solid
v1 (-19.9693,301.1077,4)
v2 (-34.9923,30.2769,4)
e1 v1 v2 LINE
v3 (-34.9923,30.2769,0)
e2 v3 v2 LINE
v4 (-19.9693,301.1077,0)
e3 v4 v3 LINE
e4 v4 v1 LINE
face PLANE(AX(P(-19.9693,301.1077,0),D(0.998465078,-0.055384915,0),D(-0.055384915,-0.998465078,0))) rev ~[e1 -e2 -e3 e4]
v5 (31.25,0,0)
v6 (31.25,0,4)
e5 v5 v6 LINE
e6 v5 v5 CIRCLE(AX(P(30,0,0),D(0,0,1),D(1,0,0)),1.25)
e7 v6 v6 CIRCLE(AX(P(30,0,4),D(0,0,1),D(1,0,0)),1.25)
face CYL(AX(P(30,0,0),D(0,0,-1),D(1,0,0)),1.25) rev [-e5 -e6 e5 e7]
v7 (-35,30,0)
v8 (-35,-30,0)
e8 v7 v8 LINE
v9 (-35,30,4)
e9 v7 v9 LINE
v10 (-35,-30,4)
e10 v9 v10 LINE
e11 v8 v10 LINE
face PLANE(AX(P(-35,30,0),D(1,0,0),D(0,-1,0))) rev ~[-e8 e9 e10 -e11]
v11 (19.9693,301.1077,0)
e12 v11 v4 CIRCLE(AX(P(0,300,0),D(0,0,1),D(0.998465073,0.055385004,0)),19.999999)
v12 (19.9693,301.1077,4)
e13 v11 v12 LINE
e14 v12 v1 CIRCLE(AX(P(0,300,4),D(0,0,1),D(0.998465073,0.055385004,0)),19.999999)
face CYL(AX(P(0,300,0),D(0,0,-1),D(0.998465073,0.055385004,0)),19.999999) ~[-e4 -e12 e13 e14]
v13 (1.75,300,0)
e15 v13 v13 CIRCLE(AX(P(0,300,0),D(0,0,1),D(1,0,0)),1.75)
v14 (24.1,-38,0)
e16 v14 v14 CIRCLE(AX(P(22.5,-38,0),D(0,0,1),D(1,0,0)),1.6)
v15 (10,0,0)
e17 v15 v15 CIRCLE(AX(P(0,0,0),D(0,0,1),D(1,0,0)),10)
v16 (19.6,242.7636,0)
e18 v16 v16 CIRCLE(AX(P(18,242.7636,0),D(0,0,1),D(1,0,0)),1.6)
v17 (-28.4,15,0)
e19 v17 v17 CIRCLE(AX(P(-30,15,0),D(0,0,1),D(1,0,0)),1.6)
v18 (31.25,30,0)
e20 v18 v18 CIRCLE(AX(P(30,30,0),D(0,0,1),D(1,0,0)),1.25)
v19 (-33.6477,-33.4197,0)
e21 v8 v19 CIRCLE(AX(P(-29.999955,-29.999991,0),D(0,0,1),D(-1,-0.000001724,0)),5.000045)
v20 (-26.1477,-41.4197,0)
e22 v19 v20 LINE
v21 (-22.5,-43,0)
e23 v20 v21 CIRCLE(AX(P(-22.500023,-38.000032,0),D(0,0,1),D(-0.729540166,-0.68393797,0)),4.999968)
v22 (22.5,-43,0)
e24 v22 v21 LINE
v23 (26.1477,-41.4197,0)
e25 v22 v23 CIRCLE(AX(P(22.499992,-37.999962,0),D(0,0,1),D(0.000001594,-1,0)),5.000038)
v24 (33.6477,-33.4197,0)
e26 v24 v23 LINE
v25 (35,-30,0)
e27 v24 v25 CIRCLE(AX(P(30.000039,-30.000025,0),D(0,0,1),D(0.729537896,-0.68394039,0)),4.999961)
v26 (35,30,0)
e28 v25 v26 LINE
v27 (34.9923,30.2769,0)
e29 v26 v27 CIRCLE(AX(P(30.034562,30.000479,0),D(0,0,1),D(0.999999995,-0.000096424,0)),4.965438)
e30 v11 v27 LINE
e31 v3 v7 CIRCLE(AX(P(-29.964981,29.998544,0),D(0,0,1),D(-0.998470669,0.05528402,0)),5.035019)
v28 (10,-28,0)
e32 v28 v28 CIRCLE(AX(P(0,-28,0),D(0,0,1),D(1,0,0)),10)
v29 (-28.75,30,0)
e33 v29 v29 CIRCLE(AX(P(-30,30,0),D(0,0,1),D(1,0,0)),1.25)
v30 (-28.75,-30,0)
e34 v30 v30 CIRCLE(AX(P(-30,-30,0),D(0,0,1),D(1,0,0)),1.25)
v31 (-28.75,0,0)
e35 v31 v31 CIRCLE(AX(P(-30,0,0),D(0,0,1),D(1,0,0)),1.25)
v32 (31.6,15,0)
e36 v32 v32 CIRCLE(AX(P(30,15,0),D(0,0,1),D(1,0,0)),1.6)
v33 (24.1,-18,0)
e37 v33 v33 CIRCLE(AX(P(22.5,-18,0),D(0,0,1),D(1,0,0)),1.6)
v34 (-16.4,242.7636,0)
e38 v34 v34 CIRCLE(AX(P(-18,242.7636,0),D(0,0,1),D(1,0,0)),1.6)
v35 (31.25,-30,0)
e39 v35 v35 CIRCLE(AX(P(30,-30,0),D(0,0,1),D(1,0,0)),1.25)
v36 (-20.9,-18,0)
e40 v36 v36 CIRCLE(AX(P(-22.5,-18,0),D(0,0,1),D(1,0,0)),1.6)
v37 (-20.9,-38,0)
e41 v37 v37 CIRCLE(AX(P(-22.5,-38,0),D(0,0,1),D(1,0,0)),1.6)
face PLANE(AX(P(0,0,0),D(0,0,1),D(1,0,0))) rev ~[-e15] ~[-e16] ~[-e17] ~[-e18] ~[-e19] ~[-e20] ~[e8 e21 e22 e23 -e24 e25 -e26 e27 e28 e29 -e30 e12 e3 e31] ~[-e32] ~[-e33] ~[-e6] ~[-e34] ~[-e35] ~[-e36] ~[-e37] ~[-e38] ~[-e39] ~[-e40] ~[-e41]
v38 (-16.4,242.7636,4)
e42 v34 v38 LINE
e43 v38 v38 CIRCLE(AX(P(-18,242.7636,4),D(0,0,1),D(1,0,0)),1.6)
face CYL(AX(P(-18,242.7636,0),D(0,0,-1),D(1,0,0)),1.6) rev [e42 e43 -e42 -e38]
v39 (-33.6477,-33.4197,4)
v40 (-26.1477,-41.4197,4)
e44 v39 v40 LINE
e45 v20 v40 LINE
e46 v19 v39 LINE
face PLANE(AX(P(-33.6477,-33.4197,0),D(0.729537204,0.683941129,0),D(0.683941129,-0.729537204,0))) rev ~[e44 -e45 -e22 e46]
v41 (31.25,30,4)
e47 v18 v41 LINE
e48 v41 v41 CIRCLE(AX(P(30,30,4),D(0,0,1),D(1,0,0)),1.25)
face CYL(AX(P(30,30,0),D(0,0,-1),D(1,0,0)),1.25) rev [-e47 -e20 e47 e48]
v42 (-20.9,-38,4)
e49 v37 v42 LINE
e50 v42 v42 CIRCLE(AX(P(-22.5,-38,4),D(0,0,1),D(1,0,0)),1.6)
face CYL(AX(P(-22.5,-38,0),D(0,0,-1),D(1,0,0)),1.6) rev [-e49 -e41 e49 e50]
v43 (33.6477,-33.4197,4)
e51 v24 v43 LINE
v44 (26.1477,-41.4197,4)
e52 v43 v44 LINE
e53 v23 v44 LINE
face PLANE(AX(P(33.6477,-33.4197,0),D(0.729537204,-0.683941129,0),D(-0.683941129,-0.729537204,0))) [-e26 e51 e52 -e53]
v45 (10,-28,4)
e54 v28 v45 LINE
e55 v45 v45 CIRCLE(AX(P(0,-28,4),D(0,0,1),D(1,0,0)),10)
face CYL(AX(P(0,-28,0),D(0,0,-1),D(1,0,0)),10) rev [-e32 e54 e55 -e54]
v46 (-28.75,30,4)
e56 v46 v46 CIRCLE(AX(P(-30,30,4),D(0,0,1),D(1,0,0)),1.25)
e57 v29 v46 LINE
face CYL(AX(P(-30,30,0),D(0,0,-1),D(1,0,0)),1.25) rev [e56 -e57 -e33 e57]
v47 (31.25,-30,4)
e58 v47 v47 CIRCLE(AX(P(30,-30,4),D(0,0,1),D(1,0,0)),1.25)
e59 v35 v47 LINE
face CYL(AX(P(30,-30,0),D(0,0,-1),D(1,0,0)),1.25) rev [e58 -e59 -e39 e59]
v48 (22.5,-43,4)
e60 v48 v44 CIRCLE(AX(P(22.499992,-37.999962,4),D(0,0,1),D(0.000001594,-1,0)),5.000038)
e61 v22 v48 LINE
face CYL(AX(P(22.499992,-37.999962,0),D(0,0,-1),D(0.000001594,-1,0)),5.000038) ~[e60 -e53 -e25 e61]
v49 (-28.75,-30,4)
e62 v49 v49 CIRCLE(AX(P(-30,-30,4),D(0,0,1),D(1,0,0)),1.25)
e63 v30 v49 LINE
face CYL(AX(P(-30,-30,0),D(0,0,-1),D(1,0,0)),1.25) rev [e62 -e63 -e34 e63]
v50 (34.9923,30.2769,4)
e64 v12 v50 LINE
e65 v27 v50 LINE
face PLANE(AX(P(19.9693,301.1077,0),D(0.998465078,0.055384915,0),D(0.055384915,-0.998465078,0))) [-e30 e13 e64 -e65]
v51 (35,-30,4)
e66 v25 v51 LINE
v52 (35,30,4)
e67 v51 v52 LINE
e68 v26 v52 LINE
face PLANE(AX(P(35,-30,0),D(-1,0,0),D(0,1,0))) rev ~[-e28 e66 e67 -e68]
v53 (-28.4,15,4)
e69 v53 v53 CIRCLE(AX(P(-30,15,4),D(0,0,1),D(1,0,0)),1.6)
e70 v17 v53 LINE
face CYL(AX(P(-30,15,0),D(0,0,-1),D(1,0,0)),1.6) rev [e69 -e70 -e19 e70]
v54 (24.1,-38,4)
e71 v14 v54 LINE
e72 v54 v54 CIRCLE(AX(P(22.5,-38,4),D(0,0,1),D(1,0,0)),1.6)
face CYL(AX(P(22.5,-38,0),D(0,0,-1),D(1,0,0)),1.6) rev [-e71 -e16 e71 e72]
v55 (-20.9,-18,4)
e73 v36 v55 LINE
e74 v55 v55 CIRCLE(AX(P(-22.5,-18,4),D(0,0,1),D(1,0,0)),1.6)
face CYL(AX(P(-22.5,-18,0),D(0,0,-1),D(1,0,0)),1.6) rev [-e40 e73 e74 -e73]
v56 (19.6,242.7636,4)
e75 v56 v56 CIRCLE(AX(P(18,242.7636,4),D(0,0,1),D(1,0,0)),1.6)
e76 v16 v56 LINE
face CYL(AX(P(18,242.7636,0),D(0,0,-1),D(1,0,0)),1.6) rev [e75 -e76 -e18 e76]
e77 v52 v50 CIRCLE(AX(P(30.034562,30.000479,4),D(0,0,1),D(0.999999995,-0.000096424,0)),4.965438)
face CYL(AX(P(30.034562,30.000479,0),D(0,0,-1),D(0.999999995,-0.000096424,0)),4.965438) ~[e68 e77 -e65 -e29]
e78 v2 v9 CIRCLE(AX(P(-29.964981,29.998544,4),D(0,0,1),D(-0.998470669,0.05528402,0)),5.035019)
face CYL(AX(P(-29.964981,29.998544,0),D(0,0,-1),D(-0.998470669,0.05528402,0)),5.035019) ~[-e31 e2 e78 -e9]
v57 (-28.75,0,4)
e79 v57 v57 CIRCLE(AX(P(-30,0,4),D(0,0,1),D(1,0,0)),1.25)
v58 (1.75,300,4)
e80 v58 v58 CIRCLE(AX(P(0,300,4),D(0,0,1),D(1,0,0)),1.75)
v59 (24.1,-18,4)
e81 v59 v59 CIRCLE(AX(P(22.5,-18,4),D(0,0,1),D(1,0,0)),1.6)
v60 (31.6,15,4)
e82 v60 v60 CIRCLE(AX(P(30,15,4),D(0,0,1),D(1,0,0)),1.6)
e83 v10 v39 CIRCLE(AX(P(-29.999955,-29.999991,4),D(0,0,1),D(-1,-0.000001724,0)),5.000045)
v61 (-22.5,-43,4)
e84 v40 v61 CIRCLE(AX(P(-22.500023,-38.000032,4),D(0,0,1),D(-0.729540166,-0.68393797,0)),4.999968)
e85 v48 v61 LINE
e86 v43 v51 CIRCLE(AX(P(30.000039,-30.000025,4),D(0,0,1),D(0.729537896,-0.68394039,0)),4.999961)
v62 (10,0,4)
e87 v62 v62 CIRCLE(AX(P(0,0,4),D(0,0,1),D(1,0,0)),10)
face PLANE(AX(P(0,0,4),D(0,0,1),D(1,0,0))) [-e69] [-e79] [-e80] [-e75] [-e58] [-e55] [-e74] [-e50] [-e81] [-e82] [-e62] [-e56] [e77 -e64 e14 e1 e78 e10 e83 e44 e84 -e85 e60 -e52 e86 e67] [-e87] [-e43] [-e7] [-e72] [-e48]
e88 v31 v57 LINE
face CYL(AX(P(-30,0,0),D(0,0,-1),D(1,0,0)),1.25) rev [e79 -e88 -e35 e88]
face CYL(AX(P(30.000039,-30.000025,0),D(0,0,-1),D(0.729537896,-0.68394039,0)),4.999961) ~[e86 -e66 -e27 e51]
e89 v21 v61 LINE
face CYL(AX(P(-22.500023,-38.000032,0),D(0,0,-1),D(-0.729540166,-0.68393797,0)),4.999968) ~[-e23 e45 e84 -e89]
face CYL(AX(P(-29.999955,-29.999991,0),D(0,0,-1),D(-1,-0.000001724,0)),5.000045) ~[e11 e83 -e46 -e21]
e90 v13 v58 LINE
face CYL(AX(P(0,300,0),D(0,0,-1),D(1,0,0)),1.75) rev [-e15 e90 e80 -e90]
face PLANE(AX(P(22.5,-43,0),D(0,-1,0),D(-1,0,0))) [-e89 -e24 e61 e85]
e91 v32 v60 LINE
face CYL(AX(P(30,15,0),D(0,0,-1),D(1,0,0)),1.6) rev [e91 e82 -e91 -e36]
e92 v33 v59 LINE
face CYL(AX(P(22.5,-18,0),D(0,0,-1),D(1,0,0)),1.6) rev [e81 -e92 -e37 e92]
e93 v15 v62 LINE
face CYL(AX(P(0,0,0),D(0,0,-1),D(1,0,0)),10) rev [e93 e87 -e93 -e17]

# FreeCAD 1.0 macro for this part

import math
import FreeCAD as App
import Part
import Sketcher
Q = App.Units.Quantity

doc = App.newDocument("Part")
body = doc.addObject("PartDesign::Body", "Body")

sketch1 = body.newObject("Sketcher::SketchObject", "Sketch")
sketch1.AttachmentSupport = (doc.getObject("XY_Plane"), [""])
sketch1.MapMode = "FlatFace"
sketch1.addGeometry(Part.LineSegment(App.Vector(35, -30, 0), App.Vector(35, 30, 0)), False)
sketch1.addGeometry(Part.ArcOfCircle(Part.Circle(App.Vector(30.034562, 30.000479, 0), App.Vector(0, 0, 1), 4.965438), math.radians(-0.005525), math.radians(3.191251)), False)
sketch1.addGeometry(Part.LineSegment(App.Vector(34.9923, 30.2769, 0), App.Vector(19.9693, 301.1077, 0)), False)
sketch1.addGeometry(Part.ArcOfCircle(Part.Circle(App.Vector(0, 300, 0), App.Vector(0, 0, 1), 19.999999), math.radians(3.174952), math.radians(176.825048)), False)
sketch1.addGeometry(Part.LineSegment(App.Vector(-19.9693, 301.1077, 0), App.Vector(-34.9923, 30.2769, 0)), False)
sketch1.addGeometry(Part.ArcOfCircle(Part.Circle(App.Vector(-29.964981, 29.998544, 0), App.Vector(0, 0, 1), 5.035019), math.radians(176.830843), math.radians(179.98343)), False)
sketch1.addGeometry(Part.LineSegment(App.Vector(-35, 30, 0), App.Vector(-35, -30, 0)), False)
sketch1.addGeometry(Part.ArcOfCircle(Part.Circle(App.Vector(-30, -30, 0), App.Vector(0, 0, 1), 5), math.radians(180), math.radians(223.152233)), False)
sketch1.addGeometry(Part.LineSegment(App.Vector(-33.6477, -33.4197, 0), App.Vector(-26.1477, -41.4197, 0)), False)
sketch1.addGeometry(Part.ArcOfCircle(Part.Circle(App.Vector(-22.5, -38, 0), App.Vector(0, 0, 1), 5.000006), math.radians(-136.847767), math.radians(-90)), False)
sketch1.addGeometry(Part.LineSegment(App.Vector(-22.5, -43, 0), App.Vector(22.5, -43, 0)), False)
sketch1.addGeometry(Part.ArcOfCircle(Part.Circle(App.Vector(22.5, -38, 0), App.Vector(0, 0, 1), 5), math.radians(-90), math.radians(-43.152233)), False)
sketch1.addGeometry(Part.LineSegment(App.Vector(26.1477, -41.4197, 0), App.Vector(33.6477, -33.4197, 0)), False)
sketch1.addGeometry(Part.ArcOfCircle(Part.Circle(App.Vector(30, -30, 0), App.Vector(0, 0, 1), 5.000006), math.radians(-43.152233), math.radians(0)), False)
sketch1.addGeometry(Part.Circle(App.Vector(-30, -30, 0), App.Vector(0, 0, 1), 1.25), False)
sketch1.addGeometry(Part.Circle(App.Vector(-30, 0, 0), App.Vector(0, 0, 1), 1.25), False)
sketch1.addGeometry(Part.Circle(App.Vector(-22.5, -38, 0), App.Vector(0, 0, 1), 1.6), False)
sketch1.addGeometry(Part.Circle(App.Vector(-22.5, -18, 0), App.Vector(0, 0, 1), 1.6), False)
sketch1.addGeometry(Part.Circle(App.Vector(-30, 15, 0), App.Vector(0, 0, 1), 1.6), False)
sketch1.addGeometry(Part.Circle(App.Vector(-30, 30, 0), App.Vector(0, 0, 1), 1.25), False)
sketch1.addGeometry(Part.Circle(App.Vector(0, -28, 0), App.Vector(0, 0, 1), 10), False)
sketch1.addGeometry(Part.Circle(App.Vector(0, 0, 0), App.Vector(0, 0, 1), 10), False)
sketch1.addGeometry(Part.Circle(App.Vector(22.5, -38, 0), App.Vector(0, 0, 1), 1.6), False)
sketch1.addGeometry(Part.Circle(App.Vector(22.5, -18, 0), App.Vector(0, 0, 1), 1.6), False)
sketch1.addGeometry(Part.Circle(App.Vector(30, -30, 0), App.Vector(0, 0, 1), 1.25), False)
sketch1.addGeometry(Part.Circle(App.Vector(30, 0, 0), App.Vector(0, 0, 1), 1.25), False)
sketch1.addGeometry(Part.Circle(App.Vector(30, 15, 0), App.Vector(0, 0, 1), 1.6), False)
sketch1.addGeometry(Part.Circle(App.Vector(30, 30, 0), App.Vector(0, 0, 1), 1.25), False)
sketch1.addGeometry(Part.Circle(App.Vector(-18, 242.7636, 0), App.Vector(0, 0, 1), 1.6), False)
sketch1.addGeometry(Part.Circle(App.Vector(0, 300, 0), App.Vector(0, 0, 1), 1.75), False)
sketch1.addGeometry(Part.Circle(App.Vector(18, 242.7636, 0), App.Vector(0, 0, 1), 1.6), False)
sketch1.addConstraint(Sketcher.Constraint("Coincident", 0, 2, 1, 1))
sketch1.addConstraint(Sketcher.Constraint("Coincident", 1, 2, 2, 1))
sketch1.addConstraint(Sketcher.Constraint("Coincident", 2, 2, 3, 1))
sketch1.addConstraint(Sketcher.Constraint("Coincident", 3, 2, 4, 1))
sketch1.addConstraint(Sketcher.Constraint("Coincident", 4, 2, 5, 1))
sketch1.addConstraint(Sketcher.Constraint("Coincident", 5, 2, 6, 1))
sketch1.addConstraint(Sketcher.Constraint("Coincident", 6, 2, 7, 1))
sketch1.addConstraint(Sketcher.Constraint("Coincident", 7, 2, 8, 1))
sketch1.addConstraint(Sketcher.Constraint("Coincident", 8, 2, 9, 1))
sketch1.addConstraint(Sketcher.Constraint("Coincident", 9, 2, 10, 1))
sketch1.addConstraint(Sketcher.Constraint("Coincident", 10, 2, 11, 1))
sketch1.addConstraint(Sketcher.Constraint("Coincident", 11, 2, 12, 1))
sketch1.addConstraint(Sketcher.Constraint("Coincident", 12, 2, 13, 1))
sketch1.addConstraint(Sketcher.Constraint("Coincident", 13, 2, 0, 1))
sketch1.addConstraint(Sketcher.Constraint("Vertical", 0))
sketch1.addConstraint(Sketcher.Constraint("Vertical", 6))
sketch1.addConstraint(Sketcher.Constraint("Horizontal", 10))
sketch1.addConstraint(Sketcher.Constraint("Coincident", 21, 3, -1, 1))
sketch1.addConstraint(Sketcher.Constraint("Coincident", 14, 3, 7, 3))
sketch1.addConstraint(Sketcher.Constraint("Coincident", 16, 3, 9, 3))
sketch1.addConstraint(Sketcher.Constraint("Coincident", 22, 3, 11, 3))
sketch1.addConstraint(Sketcher.Constraint("Coincident", 24, 3, 13, 3))
sketch1.addConstraint(Sketcher.Constraint("Coincident", 29, 3, 3, 3))
sketch1.addConstraint(Sketcher.Constraint("PointOnObject", 3, 3, -2))
sketch1.addConstraint(Sketcher.Constraint("PointOnObject", 15, 3, -1))
sketch1.addConstraint(Sketcher.Constraint("PointOnObject", 20, 3, -2))
sketch1.addConstraint(Sketcher.Constraint("PointOnObject", 25, 3, -1))
sketch1.addConstraint(Sketcher.Constraint("Diameter", 20, Q("20 mm")))
sketch1.addConstraint(Sketcher.Constraint("Diameter", 21, Q("20 mm")))
sketch1.addConstraint(Sketcher.Constraint("Radius", 3, Q("20 mm")))
sketch1.addConstraint(Sketcher.Constraint("Radius", 7, Q("5 mm")))
sketch1.addConstraint(Sketcher.Constraint("Radius", 9, Q("5 mm")))
sketch1.addConstraint(Sketcher.Constraint("Radius", 11, Q("5 mm")))
sketch1.addConstraint(Sketcher.Constraint("Radius", 13, Q("5 mm")))
sketch1.addConstraint(Sketcher.Constraint("Diameter", 14, Q("2.5 mm")))
sketch1.addConstraint(Sketcher.Constraint("Diameter", 15, Q("2.5 mm")))
sketch1.addConstraint(Sketcher.Constraint("Diameter", 16, Q("3.2 mm")))
sketch1.addConstraint(Sketcher.Constraint("Diameter", 17, Q("3.2 mm")))
sketch1.addConstraint(Sketcher.Constraint("Diameter", 18, Q("3.2 mm")))
sketch1.addConstraint(Sketcher.Constraint("Diameter", 19, Q("2.5 mm")))
sketch1.addConstraint(Sketcher.Constraint("Diameter", 22, Q("3.2 mm")))
sketch1.addConstraint(Sketcher.Constraint("Diameter", 23, Q("3.2 mm")))
sketch1.addConstraint(Sketcher.Constraint("Diameter", 24, Q("2.5 mm")))
sketch1.addConstraint(Sketcher.Constraint("Diameter", 25, Q("2.5 mm")))
sketch1.addConstraint(Sketcher.Constraint("Diameter", 26, Q("3.2 mm")))
sketch1.addConstraint(Sketcher.Constraint("Diameter", 27, Q("2.5 mm")))
sketch1.addConstraint(Sketcher.Constraint("Diameter", 28, Q("3.2 mm")))
sketch1.addConstraint(Sketcher.Constraint("Diameter", 29, Q("3.5 mm")))
sketch1.addConstraint(Sketcher.Constraint("Diameter", 30, Q("3.2 mm")))
sketch1.addConstraint(Sketcher.Constraint("DistanceX", 10, 1, 10, 2, Q("45 mm")))
sketch1.addConstraint(Sketcher.Constraint("DistanceY", 0, 1, 0, 2, Q("60 mm")))
sketch1.addConstraint(Sketcher.Constraint("DistanceY", 6, 2, 6, 1, Q("60 mm")))
sketch1.addConstraint(Sketcher.Constraint("DistanceY", -1, 1, 3, 3, Q("300 mm")))
sketch1.addConstraint(Sketcher.Constraint("DistanceY", -1, 1, 18, 3, Q("15 mm")))
sketch1.addConstraint(Sketcher.Constraint("DistanceY", 20, 3, -1, 1, Q("28 mm")))
sketch1.addConstraint(Sketcher.Constraint("DistanceY", -1, 1, 26, 3, Q("15 mm")))
sketch1.addConstraint(Sketcher.Constraint("DistanceY", 9, 3, 7, 3, Q("8 mm")))
sketch1.addConstraint(Sketcher.Constraint("DistanceX", 9, 3, 11, 3, Q("45 mm")))
sketch1.addConstraint(Sketcher.Constraint("DistanceY", 11, 3, 13, 3, Q("8 mm")))
sketch1.addConstraint(Sketcher.Constraint("DistanceX", 7, 3, 13, 3, Q("60 mm")))
sketch1.addConstraint(Sketcher.Constraint("DistanceY", 9, 3, 17, 3, Q("20 mm")))
sketch1.addConstraint(Sketcher.Constraint("DistanceY", 7, 3, 18, 3, Q("45 mm")))
sketch1.addConstraint(Sketcher.Constraint("DistanceY", 18, 3, 19, 3, Q("15 mm")))
sketch1.addConstraint(Sketcher.Constraint("DistanceY", 11, 3, 23, 3, Q("20 mm")))
sketch1.addConstraint(Sketcher.Constraint("DistanceY", 26, 3, 27, 3, Q("15 mm")))
sketch1.addConstraint(Sketcher.Constraint("DistanceX", 28, 3, 30, 3, Q("36 mm")))
sketch1.addConstraint(Sketcher.Constraint("DistanceX", 27, 3, 0, 2, Q("5 mm")))
sketch1.addConstraint(Sketcher.Constraint("DistanceX", 26, 3, 0, 2, Q("5 mm")))
sketch1.addConstraint(Sketcher.Constraint("DistanceY", 26, 3, 0, 2, Q("15 mm")))
sketch1.addConstraint(Sketcher.Constraint("DistanceX", 25, 3, 0, 2, Q("5 mm")))
sketch1.addConstraint(Sketcher.Constraint("DistanceX", 5, 2, 19, 3, Q("5 mm")))
sketch1.addConstraint(Sketcher.Constraint("DistanceX", 5, 2, 18, 3, Q("5 mm")))
sketch1.addConstraint(Sketcher.Constraint("DistanceY", 18, 3, 5, 2, Q("15 mm")))
sketch1.addConstraint(Sketcher.Constraint("DistanceX", 5, 2, 15, 3, Q("5 mm")))
sketch1.addConstraint(Sketcher.Constraint("DistanceY", 8, 2, 7, 2, Q("8 mm")))
sketch1.addConstraint(Sketcher.Constraint("DistanceY", 11, 2, 12, 2, Q("8 mm")))
sketch1.addConstraint(Sketcher.Constraint("DistanceX", 7, 3, -1, 1, Q("30 mm")))
sketch1.addConstraint(Sketcher.Constraint("DistanceX", 28, 3, -1, 1, Q("18 mm")))
sketch1.addConstraint(Sketcher.Constraint("Radius", 5, Q("5.035 mm")))
sketch1.addConstraint(Sketcher.Constraint("DistanceX", 9, 3, -1, 1, Q("22.5 mm")))
sketch1.addConstraint(Sketcher.Constraint("DistanceX", 17, 3, -1, 1, Q("22.5 mm")))
sketch1.addConstraint(Sketcher.Constraint("DistanceX", -1, 1, 23, 3, Q("22.5 mm")))
sketch1.addConstraint(Sketcher.Constraint("DistanceX", 9, 2, -1, 1, Q("22.5 mm")))
sketch1.addConstraint(Sketcher.Constraint("Radius", 1, Q("4.9654 mm")))
sketch1.addConstraint(Sketcher.Constraint("DistanceY", 7, 3, 1, 3, Q("60.0005 mm")))
sketch1.addConstraint(Sketcher.Constraint("DistanceY", -1, 1, 1, 2, Q("30.277 mm")))
sketch1.addConstraint(Sketcher.Constraint("DistanceY", -1, 1, 4, 2, Q("30.277 mm")))
sketch1.addConstraint(Sketcher.Constraint("DistanceY", 5, 3, 1, 3, Q("0.002 mm")))
sketch1.addConstraint(Sketcher.Constraint("DistanceY", 5, 3, 28, 3, Q("212.765 mm")))
sketch1.addConstraint(Sketcher.Constraint("DistanceY", 30, 3, 2, 2, Q("58.344 mm")))
sketch1.addConstraint(Sketcher.Constraint("DistanceY", 28, 3, 2, 2, Q("58.344 mm")))
sketch1.addConstraint(Sketcher.Constraint("DistanceY", 28, 3, 3, 2, Q("58.344 mm")))
sketch1.addConstraint(Sketcher.Constraint("DistanceX", 7, 2, -1, 1, Q("33.6477 mm")))
sketch1.addConstraint(Sketcher.Constraint("DistanceX", -1, 1, 11, 2, Q("26.1477 mm")))
pad1 = body.newObject("PartDesign::Pad", "Pad")
pad1.Profile = sketch1
pad1.Length = 4

doc.recompute()
